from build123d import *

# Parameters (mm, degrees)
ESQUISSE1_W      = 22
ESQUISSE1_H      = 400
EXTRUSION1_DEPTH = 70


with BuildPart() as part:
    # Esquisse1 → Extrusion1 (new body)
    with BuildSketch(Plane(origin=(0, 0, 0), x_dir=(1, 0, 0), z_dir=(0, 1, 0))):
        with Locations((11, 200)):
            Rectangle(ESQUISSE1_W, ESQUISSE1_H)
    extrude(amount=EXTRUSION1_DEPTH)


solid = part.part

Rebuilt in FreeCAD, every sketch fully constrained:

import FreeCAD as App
import Part
import Sketcher

V = App.Vector


def add_polygon(sketch, points):
    """Adds a closed chain of lines whose ends are joined by coincident constraints."""
    first, n = sketch.GeometryCount, len(points)
    for a, b in zip(points, points[1:] + points[:1]):
        sketch.addGeometry(Part.LineSegment(App.Vector(*a, 0), App.Vector(*b, 0)), False)
    for i in range(n):
        sketch.addConstraint(Sketcher.Constraint("Coincident", first + i, 2, first + (i + 1) % n, 1))

doc = App.newDocument("Part")
body = doc.addObject("PartDesign::Body", "Body")

# Sketch on XZ plane
sketch1 = doc.addObject("Sketcher::SketchObject", "Sketch")
body.addObject(sketch1)
sketch1.AttachmentSupport = (doc.XZ_Plane, [""])
sketch1.MapMode = "FlatFace"
add_polygon(sketch1, [(0, -400), (0, 0), (22, 0), (22, -400)])  # lines 0-3
sketch1.addConstraint(Sketcher.Constraint("Vertical", 0))
sketch1.addConstraint(Sketcher.Constraint("Horizontal", 1))
sketch1.addConstraint(Sketcher.Constraint("Vertical", 2))
sketch1.addConstraint(Sketcher.Constraint("Horizontal", 3))
sketch1.addConstraint(Sketcher.Constraint("Coincident", 0, 2, -1, 1))
sketch1.addConstraint(Sketcher.Constraint("DistanceX", 1, 1, 1, 2, 22.0))
sketch1.addConstraint(Sketcher.Constraint("DistanceY", 0, 1, 0, 2, 400.0))
pad1 = doc.addObject("PartDesign::Pad", "Pad")
body.addObject(pad1)
pad1.Profile = sketch1
pad1.Length = 70
pad1.Reversed = True

doc.recompute()
